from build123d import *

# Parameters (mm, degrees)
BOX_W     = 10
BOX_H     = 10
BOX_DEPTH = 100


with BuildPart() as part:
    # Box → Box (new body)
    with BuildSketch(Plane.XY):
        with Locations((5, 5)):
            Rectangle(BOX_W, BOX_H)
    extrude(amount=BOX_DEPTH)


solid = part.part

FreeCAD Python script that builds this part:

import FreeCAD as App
import Part
import Sketcher

V = App.Vector


def add_polygon(sketch, points):
    """Adds a closed chain of lines whose ends are joined by coincident constraints."""
    first, n = sketch.GeometryCount, len(points)
    for a, b in zip(points, points[1:] + points[:1]):
        sketch.addGeometry(Part.LineSegment(App.Vector(*a, 0), App.Vector(*b, 0)), False)
    for i in range(n):
        sketch.addConstraint(Sketcher.Constraint("Coincident", first + i, 2, first + (i + 1) % n, 1))

doc = App.newDocument("Part")
body = doc.addObject("PartDesign::Body", "Body")

# Sketch on XY plane
sketch1 = body.newObject("Sketcher::SketchObject", "Sketch")
sketch1.AttachmentSupport = (doc.getObject("XY_Plane"), [""])
sketch1.MapMode = "FlatFace"
add_polygon(sketch1, [(0, 10), (0, 0), (10, 0), (10, 10)])  # lines 0-3
sketch1.addConstraint([
    Sketcher.Constraint("Vertical", 0),
    Sketcher.Constraint("Horizontal", 1),
    Sketcher.Constraint("Vertical", 2),
    Sketcher.Constraint("Horizontal", 3),
    Sketcher.Constraint("Coincident", 0, 2, -1, 1),
    Sketcher.Constraint("Equal", 3, 0),
    Sketcher.Constraint("DistanceX", 1, 1, 1, 2, 10.0),
])
pad1 = body.newObject("PartDesign::Pad", "Pad")
pad1.Profile = sketch1
pad1.Length = 100

doc.recompute()
